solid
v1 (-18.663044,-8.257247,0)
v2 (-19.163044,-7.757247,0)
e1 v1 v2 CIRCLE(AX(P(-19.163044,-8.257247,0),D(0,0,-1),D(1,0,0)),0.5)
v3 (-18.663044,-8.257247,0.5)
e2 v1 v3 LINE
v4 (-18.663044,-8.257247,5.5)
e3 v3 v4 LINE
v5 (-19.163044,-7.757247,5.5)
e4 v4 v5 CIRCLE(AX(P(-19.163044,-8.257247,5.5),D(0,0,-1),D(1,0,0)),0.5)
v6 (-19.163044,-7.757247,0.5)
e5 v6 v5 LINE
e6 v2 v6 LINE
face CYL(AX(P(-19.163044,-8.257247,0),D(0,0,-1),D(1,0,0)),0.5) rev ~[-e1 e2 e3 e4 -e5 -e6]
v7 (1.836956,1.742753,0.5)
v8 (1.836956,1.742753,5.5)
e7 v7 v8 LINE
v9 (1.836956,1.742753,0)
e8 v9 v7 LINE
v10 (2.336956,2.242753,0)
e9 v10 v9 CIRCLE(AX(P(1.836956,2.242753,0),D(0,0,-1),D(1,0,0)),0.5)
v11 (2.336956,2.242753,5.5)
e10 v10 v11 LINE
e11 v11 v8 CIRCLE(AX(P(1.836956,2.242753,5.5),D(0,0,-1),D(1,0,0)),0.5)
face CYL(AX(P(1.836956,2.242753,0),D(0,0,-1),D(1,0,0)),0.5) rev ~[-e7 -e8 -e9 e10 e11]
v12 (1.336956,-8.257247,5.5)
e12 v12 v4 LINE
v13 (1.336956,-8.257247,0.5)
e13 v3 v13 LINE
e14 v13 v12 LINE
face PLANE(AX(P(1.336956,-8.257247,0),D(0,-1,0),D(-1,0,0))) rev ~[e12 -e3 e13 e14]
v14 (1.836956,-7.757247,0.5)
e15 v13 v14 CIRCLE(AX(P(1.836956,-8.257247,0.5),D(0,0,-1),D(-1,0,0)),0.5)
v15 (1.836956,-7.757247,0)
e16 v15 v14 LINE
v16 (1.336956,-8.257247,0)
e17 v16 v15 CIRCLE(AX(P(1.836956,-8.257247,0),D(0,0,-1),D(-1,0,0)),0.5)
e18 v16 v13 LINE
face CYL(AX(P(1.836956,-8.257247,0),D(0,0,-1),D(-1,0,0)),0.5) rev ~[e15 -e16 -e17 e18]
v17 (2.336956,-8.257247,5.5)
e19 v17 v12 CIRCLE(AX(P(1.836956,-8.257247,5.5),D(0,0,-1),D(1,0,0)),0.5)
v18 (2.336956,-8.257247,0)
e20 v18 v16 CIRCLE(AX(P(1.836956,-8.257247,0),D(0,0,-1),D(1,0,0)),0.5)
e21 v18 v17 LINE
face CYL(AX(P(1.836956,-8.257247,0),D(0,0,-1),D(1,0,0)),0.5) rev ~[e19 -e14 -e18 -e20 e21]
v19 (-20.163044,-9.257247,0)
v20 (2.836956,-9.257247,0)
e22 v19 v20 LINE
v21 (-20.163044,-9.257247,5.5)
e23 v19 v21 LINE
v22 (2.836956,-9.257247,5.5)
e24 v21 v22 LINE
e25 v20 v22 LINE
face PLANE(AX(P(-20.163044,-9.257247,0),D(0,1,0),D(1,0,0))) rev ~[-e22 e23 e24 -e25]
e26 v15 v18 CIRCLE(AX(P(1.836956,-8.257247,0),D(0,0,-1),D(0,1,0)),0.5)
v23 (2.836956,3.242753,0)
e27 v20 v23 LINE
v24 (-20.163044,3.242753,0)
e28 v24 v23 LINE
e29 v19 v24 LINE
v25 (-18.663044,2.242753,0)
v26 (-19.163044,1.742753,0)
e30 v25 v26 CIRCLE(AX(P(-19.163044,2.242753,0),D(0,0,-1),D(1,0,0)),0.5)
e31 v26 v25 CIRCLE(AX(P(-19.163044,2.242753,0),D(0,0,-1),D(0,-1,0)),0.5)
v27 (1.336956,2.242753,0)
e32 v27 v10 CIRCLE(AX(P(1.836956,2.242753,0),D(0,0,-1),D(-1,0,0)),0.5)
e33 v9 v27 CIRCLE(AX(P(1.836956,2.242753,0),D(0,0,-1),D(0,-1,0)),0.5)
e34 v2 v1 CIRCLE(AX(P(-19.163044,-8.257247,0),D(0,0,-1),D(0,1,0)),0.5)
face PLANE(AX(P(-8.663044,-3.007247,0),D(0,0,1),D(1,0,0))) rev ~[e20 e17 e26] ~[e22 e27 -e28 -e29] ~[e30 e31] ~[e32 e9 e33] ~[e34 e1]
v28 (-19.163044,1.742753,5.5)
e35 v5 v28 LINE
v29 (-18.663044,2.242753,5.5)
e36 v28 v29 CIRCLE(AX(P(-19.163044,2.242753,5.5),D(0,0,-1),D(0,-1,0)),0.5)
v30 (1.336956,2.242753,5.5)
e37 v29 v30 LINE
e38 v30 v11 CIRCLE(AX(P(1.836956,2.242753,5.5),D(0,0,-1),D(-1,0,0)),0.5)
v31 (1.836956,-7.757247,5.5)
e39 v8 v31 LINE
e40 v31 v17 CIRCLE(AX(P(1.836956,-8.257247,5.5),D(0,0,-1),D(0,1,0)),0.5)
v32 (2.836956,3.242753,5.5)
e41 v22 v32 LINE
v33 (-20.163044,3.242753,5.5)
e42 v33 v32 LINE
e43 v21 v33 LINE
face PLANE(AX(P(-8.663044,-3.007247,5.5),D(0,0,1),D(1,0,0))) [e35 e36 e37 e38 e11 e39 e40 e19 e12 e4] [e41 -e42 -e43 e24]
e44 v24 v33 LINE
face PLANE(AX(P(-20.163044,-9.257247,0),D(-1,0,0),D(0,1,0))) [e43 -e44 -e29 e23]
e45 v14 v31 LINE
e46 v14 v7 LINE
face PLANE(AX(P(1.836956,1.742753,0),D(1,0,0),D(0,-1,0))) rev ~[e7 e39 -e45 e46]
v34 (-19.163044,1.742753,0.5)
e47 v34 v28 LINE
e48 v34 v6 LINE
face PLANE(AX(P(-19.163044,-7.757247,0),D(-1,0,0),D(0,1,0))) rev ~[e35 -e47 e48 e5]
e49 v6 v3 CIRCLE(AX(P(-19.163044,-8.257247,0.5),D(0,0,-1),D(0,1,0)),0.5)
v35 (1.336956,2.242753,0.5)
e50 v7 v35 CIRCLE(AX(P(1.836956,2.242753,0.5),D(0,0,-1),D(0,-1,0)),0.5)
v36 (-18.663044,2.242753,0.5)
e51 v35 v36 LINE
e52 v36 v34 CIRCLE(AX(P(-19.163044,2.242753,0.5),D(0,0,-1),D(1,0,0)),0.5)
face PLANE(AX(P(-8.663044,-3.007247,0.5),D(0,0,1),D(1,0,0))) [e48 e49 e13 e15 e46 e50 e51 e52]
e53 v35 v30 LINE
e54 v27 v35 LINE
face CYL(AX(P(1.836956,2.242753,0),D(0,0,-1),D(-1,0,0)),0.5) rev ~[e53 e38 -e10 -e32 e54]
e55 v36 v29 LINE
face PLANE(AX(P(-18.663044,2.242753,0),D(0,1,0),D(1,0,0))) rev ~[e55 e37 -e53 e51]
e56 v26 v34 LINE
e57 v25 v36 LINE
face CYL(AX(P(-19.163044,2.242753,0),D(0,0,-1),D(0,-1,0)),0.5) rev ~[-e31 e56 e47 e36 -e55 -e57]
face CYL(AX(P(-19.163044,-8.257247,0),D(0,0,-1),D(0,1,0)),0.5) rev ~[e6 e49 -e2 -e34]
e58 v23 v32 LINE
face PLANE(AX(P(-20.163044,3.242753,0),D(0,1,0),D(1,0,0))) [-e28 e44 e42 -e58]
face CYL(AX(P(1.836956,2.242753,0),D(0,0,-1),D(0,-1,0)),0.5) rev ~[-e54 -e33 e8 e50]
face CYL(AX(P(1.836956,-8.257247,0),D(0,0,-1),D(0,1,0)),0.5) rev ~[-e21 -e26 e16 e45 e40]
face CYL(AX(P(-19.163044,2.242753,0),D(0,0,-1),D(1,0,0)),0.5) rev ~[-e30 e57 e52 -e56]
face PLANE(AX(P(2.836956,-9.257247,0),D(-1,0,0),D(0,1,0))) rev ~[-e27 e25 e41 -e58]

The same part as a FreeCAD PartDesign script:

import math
import FreeCAD as App
import Part
import Sketcher
from FreeCAD import Vector

doc = App.newDocument("Part")
body = doc.addObject("PartDesign::Body", "Body")

# Sketch on XY plane
sketch1 = doc.addObject("Sketcher::SketchObject", "Sketch")
body.addObject(sketch1)
sketch1.AttachmentSupport = (doc.XY_Plane, [""])
sketch1.MapMode = "FlatFace"
sketch1.addGeometry(Part.LineSegment(Vector(1.3, 2.2, 0), Vector(-18.7, 2.2, 0)), False)
sketch1.addGeometry(Part.ArcOfCircle(Part.Circle(Vector(-19.2, 2.2, 0), Vector(0, 0, 1), 0.5), math.radians(-90), math.radians(0)), False)
sketch1.addGeometry(Part.LineSegment(Vector(-19.2, 1.7, 0), Vector(-19.2, -7.8, 0)), False)
sketch1.addGeometry(Part.ArcOfCircle(Part.Circle(Vector(-19.2, -8.3, 0), Vector(0, 0, 1), 0.5), math.radians(0), math.radians(90)), False)
sketch1.addGeometry(Part.LineSegment(Vector(-18.7, -8.3, 0), Vector(1.3, -8.3, 0)), False)
sketch1.addGeometry(Part.ArcOfCircle(Part.Circle(Vector(1.8, -8.3, 0), Vector(0, 0, 1), 0.5), math.radians(90), math.radians(180)), False)
sketch1.addGeometry(Part.LineSegment(Vector(1.8, -7.8, 0), Vector(1.8, 1.7, 0)), False)
sketch1.addGeometry(Part.ArcOfCircle(Part.Circle(Vector(1.8, 2.2, 0), Vector(0, 0, 1), 0.5), math.radians(180), math.radians(270)), False)
sketch1.addConstraint(Sketcher.Constraint("Coincident", 0, 2, 1, 2))
sketch1.addConstraint(Sketcher.Constraint("Coincident", 1, 1, 2, 1))
sketch1.addConstraint(Sketcher.Constraint("Coincident", 2, 2, 3, 2))
sketch1.addConstraint(Sketcher.Constraint("Coincident", 3, 1, 4, 1))
sketch1.addConstraint(Sketcher.Constraint("Coincident", 4, 2, 5, 2))
sketch1.addConstraint(Sketcher.Constraint("Coincident", 5, 1, 6, 1))
sketch1.addConstraint(Sketcher.Constraint("Coincident", 6, 2, 7, 2))
sketch1.addConstraint(Sketcher.Constraint("Coincident", 7, 1, 0, 1))
sketch1.addConstraint(Sketcher.Constraint("Horizontal", 0))
sketch1.addConstraint(Sketcher.Constraint("Vertical", 2))
sketch1.addConstraint(Sketcher.Constraint("Horizontal", 4))
sketch1.addConstraint(Sketcher.Constraint("Vertical", 6))
sketch1.addConstraint(Sketcher.Constraint("Equal", 1, 3))
sketch1.addConstraint(Sketcher.Constraint("Equal", 3, 5))
sketch1.addConstraint(Sketcher.Constraint("Equal", 5, 7))
sketch1.addConstraint(Sketcher.Constraint("Horizontal", 3, 3, 5, 3))
sketch1.addConstraint(Sketcher.Constraint("Horizontal", 1, 3, 7, 3))
sketch1.addConstraint(Sketcher.Constraint("Horizontal", 7, 3, 0, 2))
sketch1.addConstraint(Sketcher.Constraint("Horizontal", 5, 3, 3, 1))
sketch1.addConstraint(Sketcher.Constraint("Vertical", 1, 3, 3, 3))
sketch1.addConstraint(Sketcher.Constraint("Vertical", 5, 3, 7, 3))
sketch1.addConstraint(Sketcher.Constraint("Vertical", 3, 3, 1, 1))
sketch1.addConstraint(Sketcher.Constraint("Vertical", 7, 3, 5, 1))
sketch1.addConstraint(Sketcher.Constraint("Radius", 1, 0.5))
sketch1.addConstraint(Sketcher.Constraint("DistanceX", 0, 2, 0, 1, 20.0))
sketch1.addConstraint(Sketcher.Constraint("DistanceY", 2, 2, 2, 1, 9.5))
sketch1.addConstraint(Sketcher.Constraint("DistanceX", 1, 3, -1, 1, 19.163044))
sketch1.addConstraint(Sketcher.Constraint("DistanceY", -1, 1, 1, 3, 2.242753))
pad1 = doc.addObject("PartDesign::Pad", "Pad")
body.addObject(pad1)
pad1.Profile = sketch1
pad1.Length = 0.5

# Sketch on XY plane
sketch2 = doc.addObject("Sketcher::SketchObject", "Sketch001")
body.addObject(sketch2)
sketch2.AttachmentSupport = (doc.XY_Plane, [""])
sketch2.MapMode = "FlatFace"
sketch2.addGeometry(Part.LineSegment(Vector(-20.2, 3.2, 0), Vector(-20.2, -9.3, 0)), False)
sketch2.addGeometry(Part.LineSegment(Vector(-20.2, -9.3, 0), Vector(2.8, -9.3, 0)), False)
sketch2.addGeometry(Part.LineSegment(Vector(2.8, -9.3, 0), Vector(2.8, 3.2, 0)), False)
sketch2.addGeometry(Part.LineSegment(Vector(2.8, 3.2, 0), Vector(-20.2, 3.2, 0)), False)
sketch2.addGeometry(Part.LineSegment(Vector(-19.2, -7.8, 0), Vector(-19.2, 1.7, 0)), False)
sketch2.addGeometry(Part.ArcOfCircle(Part.Circle(Vector(-19.2, 2.2, 0), Vector(0, 0, 1), 0.5), math.radians(0), math.radians(270)), False)
sketch2.addGeometry(Part.LineSegment(Vector(-18.7, 2.2, 0), Vector(1.3, 2.2, 0)), False)
sketch2.addGeometry(Part.ArcOfCircle(Part.Circle(Vector(1.8, 2.2, 0), Vector(0, 0, 1), 0.5), math.radians(0), math.radians(180)), False)
sketch2.addGeometry(Part.ArcOfCircle(Part.Circle(Vector(1.8, 2.2, 0), Vector(0, 0, 1), 0.5), math.radians(-90), math.radians(0)), False)
sketch2.addGeometry(Part.LineSegment(Vector(1.8, 1.7, 0), Vector(1.8, -7.8, 0)), False)
sketch2.addGeometry(Part.ArcOfCircle(Part.Circle(Vector(1.8, -8.3, 0), Vector(0, 0, 1), 0.5), math.radians(0), math.radians(90)), False)
sketch2.addGeometry(Part.ArcOfCircle(Part.Circle(Vector(1.8, -8.3, 0), Vector(0, 0, 1), 0.5), math.radians(180), math.radians(360)), False)
sketch2.addGeometry(Part.LineSegment(Vector(1.3, -8.3, 0), Vector(-18.7, -8.3, 0)), False)
sketch2.addGeometry(Part.ArcOfCircle(Part.Circle(Vector(-19.2, -8.3, 0), Vector(0, 0, 1), 0.5), math.radians(90), math.radians(360)), False)
sketch2.addConstraint(Sketcher.Constraint("Coincident", 0, 2, 1, 1))
sketch2.addConstraint(Sketcher.Constraint("Coincident", 1, 2, 2, 1))
sketch2.addConstraint(Sketcher.Constraint("Coincident", 2, 2, 3, 1))
sketch2.addConstraint(Sketcher.Constraint("Coincident", 3, 2, 0, 1))
sketch2.addConstraint(Sketcher.Constraint("Coincident", 4, 2, 5, 2))
sketch2.addConstraint(Sketcher.Constraint("Coincident", 5, 1, 6, 1))
sketch2.addConstraint(Sketcher.Constraint("Coincident", 6, 2, 7, 2))
sketch2.addConstraint(Sketcher.Constraint("Tangent", 7, 1, 8, 2))
sketch2.addConstraint(Sketcher.Constraint("Coincident", 8, 1, 9, 1))
sketch2.addConstraint(Sketcher.Constraint("Coincident", 9, 2, 10, 2))
sketch2.addConstraint(Sketcher.Constraint("Tangent", 10, 1, 11, 2))
sketch2.addConstraint(Sketcher.Constraint("Coincident", 11, 1, 12, 1))
sketch2.addConstraint(Sketcher.Constraint("Coincident", 12, 2, 13, 2))
sketch2.addConstraint(Sketcher.Constraint("Coincident", 13, 1, 4, 1))
sketch2.addConstraint(Sketcher.Constraint("Vertical", 0))
sketch2.addConstraint(Sketcher.Constraint("Horizontal", 1))
sketch2.addConstraint(Sketcher.Constraint("Vertical", 2))
sketch2.addConstraint(Sketcher.Constraint("Horizontal", 3))
sketch2.addConstraint(Sketcher.Constraint("Vertical", 4))
sketch2.addConstraint(Sketcher.Constraint("Horizontal", 6))
sketch2.addConstraint(Sketcher.Constraint("Vertical", 9))
sketch2.addConstraint(Sketcher.Constraint("Horizontal", 12))
sketch2.addConstraint(Sketcher.Constraint("Equal", 5, 7))
sketch2.addConstraint(Sketcher.Constraint("Equal", 7, 8))
sketch2.addConstraint(Sketcher.Constraint("Equal", 8, 10))
sketch2.addConstraint(Sketcher.Constraint("Equal", 10, 11))
sketch2.addConstraint(Sketcher.Constraint("Equal", 11, 13))
sketch2.addConstraint(Sketcher.Constraint("Horizontal", 5, 3, 7, 3))
sketch2.addConstraint(Sketcher.Constraint("Horizontal", 11, 3, 13, 3))
sketch2.addConstraint(Sketcher.Constraint("Horizontal", 8, 3, 5, 1))
sketch2.addConstraint(Sketcher.Constraint("Horizontal", 6, 2, 7, 1))
sketch2.addConstraint(Sketcher.Constraint("Horizontal", 13, 3, 10, 1))
sketch2.addConstraint(Sketcher.Constraint("Horizontal", 10, 1, 11, 1))
sketch2.addConstraint(Sketcher.Constraint("Vertical", 8, 3, 10, 3))
sketch2.addConstraint(Sketcher.Constraint("Vertical", 5, 3, 13, 3))
sketch2.addConstraint(Sketcher.Constraint("Vertical", 13, 3, 4, 2))
sketch2.addConstraint(Sketcher.Constraint("Vertical", 11, 3, 8, 1))
sketch2.addConstraint(Sketcher.Constraint("Radius", 5, 0.5))
sketch2.addConstraint(Sketcher.Constraint("DistanceX", 1, 1, 1, 2, 23.0))
sketch2.addConstraint(Sketcher.Constraint("DistanceX", 6, 1, 6, 2, 20.0))
sketch2.addConstraint(Sketcher.Constraint("DistanceY", 0, 2, 0, 1, 12.5))
sketch2.addConstraint(Sketcher.Constraint("DistanceY", 4, 1, 4, 2, 9.5))
sketch2.addConstraint(Sketcher.Constraint("DistanceX", 0, 2, 13, 3, 1.0))
sketch2.addConstraint(Sketcher.Constraint("DistanceY", 0, 2, 13, 3, 1.0))
sketch2.addConstraint(Sketcher.Constraint("DistanceX", 5, 3, -1, 1, 19.163044))
sketch2.addConstraint(Sketcher.Constraint("DistanceY", -1, 1, 5, 3, 2.242753))
pad2 = doc.addObject("PartDesign::Pad", "Pad001")
body.addObject(pad2)
pad2.Profile = sketch2
pad2.Length = 5.5

doc.recompute()
